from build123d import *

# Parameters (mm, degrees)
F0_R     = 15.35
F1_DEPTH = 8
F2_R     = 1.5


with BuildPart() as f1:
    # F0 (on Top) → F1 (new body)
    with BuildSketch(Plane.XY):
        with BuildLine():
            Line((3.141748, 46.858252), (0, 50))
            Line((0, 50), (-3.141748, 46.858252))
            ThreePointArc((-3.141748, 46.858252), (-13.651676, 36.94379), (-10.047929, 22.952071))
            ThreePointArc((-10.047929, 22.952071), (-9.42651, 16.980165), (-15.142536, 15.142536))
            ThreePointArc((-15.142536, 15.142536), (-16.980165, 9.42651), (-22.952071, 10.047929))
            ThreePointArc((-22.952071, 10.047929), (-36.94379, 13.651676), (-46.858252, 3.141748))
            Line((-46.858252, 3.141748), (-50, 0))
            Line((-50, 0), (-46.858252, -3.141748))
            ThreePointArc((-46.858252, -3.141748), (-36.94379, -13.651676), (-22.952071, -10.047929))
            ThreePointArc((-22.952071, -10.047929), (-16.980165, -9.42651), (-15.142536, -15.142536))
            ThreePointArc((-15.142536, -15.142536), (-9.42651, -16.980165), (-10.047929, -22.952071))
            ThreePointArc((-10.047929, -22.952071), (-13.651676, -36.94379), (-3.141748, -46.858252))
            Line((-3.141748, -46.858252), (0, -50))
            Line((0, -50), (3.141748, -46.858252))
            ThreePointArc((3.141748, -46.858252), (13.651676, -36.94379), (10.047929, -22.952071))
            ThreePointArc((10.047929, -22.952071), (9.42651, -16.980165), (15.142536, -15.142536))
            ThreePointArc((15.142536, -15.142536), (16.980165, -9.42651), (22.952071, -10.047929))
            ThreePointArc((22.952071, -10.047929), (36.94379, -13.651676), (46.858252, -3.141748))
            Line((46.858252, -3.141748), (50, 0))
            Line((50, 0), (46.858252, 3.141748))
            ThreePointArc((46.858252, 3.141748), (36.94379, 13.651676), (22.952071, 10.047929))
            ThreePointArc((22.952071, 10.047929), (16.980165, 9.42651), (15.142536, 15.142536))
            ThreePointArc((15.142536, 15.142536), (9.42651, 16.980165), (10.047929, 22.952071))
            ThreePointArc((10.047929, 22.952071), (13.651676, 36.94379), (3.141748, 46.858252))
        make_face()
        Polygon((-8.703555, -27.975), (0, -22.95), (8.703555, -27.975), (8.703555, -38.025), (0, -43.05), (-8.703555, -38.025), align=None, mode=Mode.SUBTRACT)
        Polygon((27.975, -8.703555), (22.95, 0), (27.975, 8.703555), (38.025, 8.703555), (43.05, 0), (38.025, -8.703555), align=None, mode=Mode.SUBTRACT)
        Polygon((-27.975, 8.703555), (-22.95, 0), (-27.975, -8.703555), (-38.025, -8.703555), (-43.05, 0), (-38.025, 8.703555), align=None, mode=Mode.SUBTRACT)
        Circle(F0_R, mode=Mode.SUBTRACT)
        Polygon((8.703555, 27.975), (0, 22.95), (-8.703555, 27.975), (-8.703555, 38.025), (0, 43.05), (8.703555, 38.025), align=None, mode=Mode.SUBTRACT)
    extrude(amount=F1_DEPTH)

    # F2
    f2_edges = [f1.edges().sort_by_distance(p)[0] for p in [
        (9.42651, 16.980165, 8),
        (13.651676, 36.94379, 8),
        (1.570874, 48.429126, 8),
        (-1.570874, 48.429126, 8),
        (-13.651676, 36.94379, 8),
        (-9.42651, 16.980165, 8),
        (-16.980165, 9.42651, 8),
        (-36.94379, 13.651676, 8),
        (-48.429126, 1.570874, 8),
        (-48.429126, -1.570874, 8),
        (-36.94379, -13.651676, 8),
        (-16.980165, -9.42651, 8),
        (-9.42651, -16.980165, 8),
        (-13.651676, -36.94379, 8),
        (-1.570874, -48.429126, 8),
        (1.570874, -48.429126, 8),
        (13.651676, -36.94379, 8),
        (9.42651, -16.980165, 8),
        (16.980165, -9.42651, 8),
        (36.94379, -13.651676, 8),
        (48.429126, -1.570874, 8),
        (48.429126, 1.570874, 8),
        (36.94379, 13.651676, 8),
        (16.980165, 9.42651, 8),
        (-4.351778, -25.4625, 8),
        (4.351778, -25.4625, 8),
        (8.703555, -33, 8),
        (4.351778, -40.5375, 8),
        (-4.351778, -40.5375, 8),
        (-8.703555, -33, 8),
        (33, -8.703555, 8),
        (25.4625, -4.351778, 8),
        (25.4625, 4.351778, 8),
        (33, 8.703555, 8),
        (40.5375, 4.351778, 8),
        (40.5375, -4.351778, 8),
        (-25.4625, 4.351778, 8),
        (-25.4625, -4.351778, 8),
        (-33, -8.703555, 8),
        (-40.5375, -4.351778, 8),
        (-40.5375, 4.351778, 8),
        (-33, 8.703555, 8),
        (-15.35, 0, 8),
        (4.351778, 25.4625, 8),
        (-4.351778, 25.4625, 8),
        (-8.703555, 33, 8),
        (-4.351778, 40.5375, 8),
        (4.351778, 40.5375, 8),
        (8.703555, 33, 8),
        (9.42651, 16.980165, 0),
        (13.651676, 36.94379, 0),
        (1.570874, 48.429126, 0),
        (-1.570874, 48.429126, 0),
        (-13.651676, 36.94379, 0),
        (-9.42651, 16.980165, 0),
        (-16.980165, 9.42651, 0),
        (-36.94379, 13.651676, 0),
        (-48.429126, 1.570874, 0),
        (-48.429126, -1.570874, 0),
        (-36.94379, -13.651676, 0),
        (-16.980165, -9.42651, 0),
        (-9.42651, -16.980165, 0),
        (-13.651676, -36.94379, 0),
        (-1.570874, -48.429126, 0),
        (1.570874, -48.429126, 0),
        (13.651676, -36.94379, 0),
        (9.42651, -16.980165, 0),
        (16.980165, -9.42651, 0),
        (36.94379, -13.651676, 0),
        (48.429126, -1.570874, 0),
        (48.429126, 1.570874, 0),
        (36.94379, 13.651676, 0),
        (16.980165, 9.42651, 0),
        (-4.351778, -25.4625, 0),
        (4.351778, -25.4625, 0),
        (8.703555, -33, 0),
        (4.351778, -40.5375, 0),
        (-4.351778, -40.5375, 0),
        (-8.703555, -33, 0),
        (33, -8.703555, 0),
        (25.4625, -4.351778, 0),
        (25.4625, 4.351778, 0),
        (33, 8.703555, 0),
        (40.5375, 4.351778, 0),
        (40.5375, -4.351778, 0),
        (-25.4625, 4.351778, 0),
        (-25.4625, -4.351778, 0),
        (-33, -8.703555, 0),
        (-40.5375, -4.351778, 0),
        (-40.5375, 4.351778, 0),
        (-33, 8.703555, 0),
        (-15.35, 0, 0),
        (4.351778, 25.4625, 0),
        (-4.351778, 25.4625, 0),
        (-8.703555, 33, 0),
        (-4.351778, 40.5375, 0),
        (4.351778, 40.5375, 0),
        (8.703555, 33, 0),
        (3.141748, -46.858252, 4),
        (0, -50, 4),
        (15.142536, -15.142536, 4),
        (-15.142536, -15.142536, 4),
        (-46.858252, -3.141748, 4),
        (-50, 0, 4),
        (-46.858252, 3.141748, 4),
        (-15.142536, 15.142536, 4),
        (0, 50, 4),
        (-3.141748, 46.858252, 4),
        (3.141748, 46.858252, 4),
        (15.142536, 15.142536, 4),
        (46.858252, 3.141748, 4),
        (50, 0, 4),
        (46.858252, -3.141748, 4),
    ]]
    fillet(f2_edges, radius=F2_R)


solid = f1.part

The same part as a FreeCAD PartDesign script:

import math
import FreeCAD as App
import Part
import Sketcher
Q = App.Units.Quantity


def edges_at(feature, points):
    """Names of the edges that pass closest to the given points."""
    edges = feature.Shape.Edges
    near = lambda p: min(range(len(edges)), key=lambda i: edges[i].distToShape(Part.Vertex(*p))[0])
    return sorted({f"Edge{near(p) + 1}" for p in points})

doc = App.newDocument("Part")
body = doc.addObject("PartDesign::Body", "Body")

# Sketch on XY plane
sketch1 = body.newObject("Sketcher::SketchObject", "Sketch")
sketch1.AttachmentSupport = (doc.getObject("XY_Plane"), [""])
sketch1.MapMode = "FlatFace"
sketch1.addGeometry(Part.LineSegment(App.Vector(3.1, 46.9, 0), App.Vector(0, 50, 0)), False)
sketch1.addGeometry(Part.LineSegment(App.Vector(0, 50, 0), App.Vector(-3.1, 46.9, 0)), False)
sketch1.addGeometry(Part.ArcOfCircle(Part.Circle(App.Vector(0, 33, 0), App.Vector(0, 0, 1), 14.2), math.radians(103), math.radians(225)), False)
sketch1.addGeometry(Part.ArcOfCircle(Part.Circle(App.Vector(-13.4, 19.6, 0), App.Vector(0, 0, 1), 4.8), math.radians(-111), math.radians(45)), False)
sketch1.addGeometry(Part.ArcOfCircle(Part.Circle(App.Vector(-19.6, 13.4, 0), App.Vector(0, 0, 1), 4.8), math.radians(-135), math.radians(21)), False)
sketch1.addGeometry(Part.ArcOfCircle(Part.Circle(App.Vector(-33, 0, 0), App.Vector(0, 0, 1), 14.2), math.radians(45), math.radians(167)), False)
sketch1.addGeometry(Part.LineSegment(App.Vector(-46.9, 3.1, 0), App.Vector(-50, 0, 0)), False)
sketch1.addGeometry(Part.LineSegment(App.Vector(-50, 0, 0), App.Vector(-46.9, -3.1, 0)), False)
sketch1.addGeometry(Part.ArcOfCircle(Part.Circle(App.Vector(-33, 0, 0), App.Vector(0, 0, 1), 14.2), math.radians(-167), math.radians(-45)), False)
sketch1.addGeometry(Part.ArcOfCircle(Part.Circle(App.Vector(-19.6, -13.4, 0), App.Vector(0, 0, 1), 4.8), math.radians(-21), math.radians(135)), False)
sketch1.addGeometry(Part.ArcOfCircle(Part.Circle(App.Vector(-13.4, -19.6, 0), App.Vector(0, 0, 1), 4.8), math.radians(-45), math.radians(111)), False)
sketch1.addGeometry(Part.ArcOfCircle(Part.Circle(App.Vector(0, -33, 0), App.Vector(0, 0, 1), 14.2), math.radians(135), math.radians(257)), False)
sketch1.addGeometry(Part.LineSegment(App.Vector(-3.1, -46.9, 0), App.Vector(0, -50, 0)), False)
sketch1.addGeometry(Part.LineSegment(App.Vector(0, -50, 0), App.Vector(3.1, -46.9, 0)), False)
sketch1.addGeometry(Part.ArcOfCircle(Part.Circle(App.Vector(0, -33, 0), App.Vector(0, 0, 1), 14.2), math.radians(-77), math.radians(45)), False)
sketch1.addGeometry(Part.ArcOfCircle(Part.Circle(App.Vector(13.4, -19.6, 0), App.Vector(0, 0, 1), 4.8), math.radians(69), math.radians(225)), False)
sketch1.addGeometry(Part.ArcOfCircle(Part.Circle(App.Vector(19.6, -13.4, 0), App.Vector(0, 0, 1), 4.8), math.radians(45), math.radians(201)), False)
sketch1.addGeometry(Part.ArcOfCircle(Part.Circle(App.Vector(33, 0, 0), App.Vector(0, 0, 1), 14.2), math.radians(-135), math.radians(-13)), False)
sketch1.addGeometry(Part.LineSegment(App.Vector(46.9, -3.1, 0), App.Vector(50, 0, 0)), False)
sketch1.addGeometry(Part.LineSegment(App.Vector(50, 0, 0), App.Vector(46.9, 3.1, 0)), False)
sketch1.addGeometry(Part.ArcOfCircle(Part.Circle(App.Vector(33, 0, 0), App.Vector(0, 0, 1), 14.2), math.radians(13), math.radians(135)), False)
sketch1.addGeometry(Part.ArcOfCircle(Part.Circle(App.Vector(19.6, 13.4, 0), App.Vector(0, 0, 1), 4.8), math.radians(159), math.radians(315)), False)
sketch1.addGeometry(Part.ArcOfCircle(Part.Circle(App.Vector(13.4, 19.6, 0), App.Vector(0, 0, 1), 4.8), math.radians(135), math.radians(291)), False)
sketch1.addGeometry(Part.ArcOfCircle(Part.Circle(App.Vector(0, 33, 0), App.Vector(0, 0, 1), 14.2), math.radians(-45), math.radians(77)), False)
sketch1.addGeometry(Part.LineSegment(App.Vector(-8.7, -38, 0), App.Vector(-8.7, -28, 0)), False)
sketch1.addGeometry(Part.LineSegment(App.Vector(-8.7, -28, 0), App.Vector(0, -22.9, 0)), False)
sketch1.addGeometry(Part.LineSegment(App.Vector(0, -22.9, 0), App.Vector(8.7, -28, 0)), False)
sketch1.addGeometry(Part.LineSegment(App.Vector(8.7, -28, 0), App.Vector(8.7, -38, 0)), False)
sketch1.addGeometry(Part.LineSegment(App.Vector(8.7, -38, 0), App.Vector(0, -43, 0)), False)
sketch1.addGeometry(Part.LineSegment(App.Vector(0, -43, 0), App.Vector(-8.7, -38, 0)), False)
sketch1.addGeometry(Part.LineSegment(App.Vector(-38, 8.7, 0), App.Vector(-28, 8.7, 0)), False)
sketch1.addGeometry(Part.LineSegment(App.Vector(-28, 8.7, 0), App.Vector(-22.9, 0, 0)), False)
sketch1.addGeometry(Part.LineSegment(App.Vector(-22.9, 0, 0), App.Vector(-28, -8.7, 0)), False)
sketch1.addGeometry(Part.LineSegment(App.Vector(-28, -8.7, 0), App.Vector(-38, -8.7, 0)), False)
sketch1.addGeometry(Part.LineSegment(App.Vector(-38, -8.7, 0), App.Vector(-43, 0, 0)), False)
sketch1.addGeometry(Part.LineSegment(App.Vector(-43, 0, 0), App.Vector(-38, 8.7, 0)), False)
sketch1.addGeometry(Part.Circle(App.Vector(0, 0, 0), App.Vector(0, 0, 1), 15.3), False)
sketch1.addGeometry(Part.LineSegment(App.Vector(38, -8.7, 0), App.Vector(28, -8.7, 0)), False)
sketch1.addGeometry(Part.LineSegment(App.Vector(28, -8.7, 0), App.Vector(22.9, 0, 0)), False)
sketch1.addGeometry(Part.LineSegment(App.Vector(22.9, 0, 0), App.Vector(28, 8.7, 0)), False)
sketch1.addGeometry(Part.LineSegment(App.Vector(28, 8.7, 0), App.Vector(38, 8.7, 0)), False)
sketch1.addGeometry(Part.LineSegment(App.Vector(38, 8.7, 0), App.Vector(43, 0, 0)), False)
sketch1.addGeometry(Part.LineSegment(App.Vector(43, 0, 0), App.Vector(38, -8.7, 0)), False)
sketch1.addGeometry(Part.LineSegment(App.Vector(8.7, 38, 0), App.Vector(8.7, 28, 0)), False)
sketch1.addGeometry(Part.LineSegment(App.Vector(8.7, 28, 0), App.Vector(0, 22.9, 0)), False)
sketch1.addGeometry(Part.LineSegment(App.Vector(0, 22.9, 0), App.Vector(-8.7, 28, 0)), False)
sketch1.addGeometry(Part.LineSegment(App.Vector(-8.7, 28, 0), App.Vector(-8.7, 38, 0)), False)
sketch1.addGeometry(Part.LineSegment(App.Vector(-8.7, 38, 0), App.Vector(0, 43, 0)), False)
sketch1.addGeometry(Part.LineSegment(App.Vector(0, 43, 0), App.Vector(8.7, 38, 0)), False)
sketch1.addConstraint(Sketcher.Constraint("Coincident", 0, 2, 1, 1))
sketch1.addConstraint(Sketcher.Constraint("Coincident", 1, 2, 2, 1))
sketch1.addConstraint(Sketcher.Constraint("Tangent", 2, 2, 3, 2))
sketch1.addConstraint(Sketcher.Constraint("Coincident", 3, 1, 4, 2))
sketch1.addConstraint(Sketcher.Constraint("Tangent", 4, 1, 5, 1))
sketch1.addConstraint(Sketcher.Constraint("Coincident", 5, 2, 6, 1))
sketch1.addConstraint(Sketcher.Constraint("Coincident", 6, 2, 7, 1))
sketch1.addConstraint(Sketcher.Constraint("Coincident", 7, 2, 8, 1))
sketch1.addConstraint(Sketcher.Constraint("Tangent", 8, 2, 9, 2))
sketch1.addConstraint(Sketcher.Constraint("Coincident", 9, 1, 10, 2))
sketch1.addConstraint(Sketcher.Constraint("Tangent", 10, 1, 11, 1))
sketch1.addConstraint(Sketcher.Constraint("Coincident", 11, 2, 12, 1))
sketch1.addConstraint(Sketcher.Constraint("Coincident", 12, 2, 13, 1))
sketch1.addConstraint(Sketcher.Constraint("Coincident", 13, 2, 14, 1))
sketch1.addConstraint(Sketcher.Constraint("Tangent", 14, 2, 15, 2))
sketch1.addConstraint(Sketcher.Constraint("Coincident", 15, 1, 16, 2))
sketch1.addConstraint(Sketcher.Constraint("Tangent", 16, 1, 17, 1))
sketch1.addConstraint(Sketcher.Constraint("Coincident", 17, 2, 18, 1))
sketch1.addConstraint(Sketcher.Constraint("Coincident", 18, 2, 19, 1))
sketch1.addConstraint(Sketcher.Constraint("Coincident", 19, 2, 20, 1))
sketch1.addConstraint(Sketcher.Constraint("Tangent", 20, 2, 21, 2))
sketch1.addConstraint(Sketcher.Constraint("Coincident", 21, 1, 22, 2))
sketch1.addConstraint(Sketcher.Constraint("Tangent", 22, 1, 23, 1))
sketch1.addConstraint(Sketcher.Constraint("Coincident", 23, 2, 0, 1))
sketch1.addConstraint(Sketcher.Constraint("Coincident", 24, 2, 25, 1))
sketch1.addConstraint(Sketcher.Constraint("Coincident", 25, 2, 26, 1))
sketch1.addConstraint(Sketcher.Constraint("Coincident", 26, 2, 27, 1))
sketch1.addConstraint(Sketcher.Constraint("Coincident", 27, 2, 28, 1))
sketch1.addConstraint(Sketcher.Constraint("Coincident", 28, 2, 29, 1))
sketch1.addConstraint(Sketcher.Constraint("Coincident", 29, 2, 24, 1))
sketch1.addConstraint(Sketcher.Constraint("Coincident", 30, 2, 31, 1))
sketch1.addConstraint(Sketcher.Constraint("Coincident", 31, 2, 32, 1))
sketch1.addConstraint(Sketcher.Constraint("Coincident", 32, 2, 33, 1))
sketch1.addConstraint(Sketcher.Constraint("Coincident", 33, 2, 34, 1))
sketch1.addConstraint(Sketcher.Constraint("Coincident", 34, 2, 35, 1))
sketch1.addConstraint(Sketcher.Constraint("Coincident", 35, 2, 30, 1))
sketch1.addConstraint(Sketcher.Constraint("Coincident", 37, 2, 38, 1))
sketch1.addConstraint(Sketcher.Constraint("Coincident", 38, 2, 39, 1))
sketch1.addConstraint(Sketcher.Constraint("Coincident", 39, 2, 40, 1))
sketch1.addConstraint(Sketcher.Constraint("Coincident", 40, 2, 41, 1))
sketch1.addConstraint(Sketcher.Constraint("Coincident", 41, 2, 42, 1))
sketch1.addConstraint(Sketcher.Constraint("Coincident", 42, 2, 37, 1))
sketch1.addConstraint(Sketcher.Constraint("Coincident", 43, 2, 44, 1))
sketch1.addConstraint(Sketcher.Constraint("Coincident", 44, 2, 45, 1))
sketch1.addConstraint(Sketcher.Constraint("Coincident", 45, 2, 46, 1))
sketch1.addConstraint(Sketcher.Constraint("Coincident", 46, 2, 47, 1))
sketch1.addConstraint(Sketcher.Constraint("Coincident", 47, 2, 48, 1))
sketch1.addConstraint(Sketcher.Constraint("Coincident", 48, 2, 43, 1))
sketch1.addConstraint(Sketcher.Constraint("Vertical", 24))
sketch1.addConstraint(Sketcher.Constraint("Vertical", 27))
sketch1.addConstraint(Sketcher.Constraint("Horizontal", 30))
sketch1.addConstraint(Sketcher.Constraint("Horizontal", 33))
sketch1.addConstraint(Sketcher.Constraint("Horizontal", 37))
sketch1.addConstraint(Sketcher.Constraint("Horizontal", 40))
sketch1.addConstraint(Sketcher.Constraint("Vertical", 43))
sketch1.addConstraint(Sketcher.Constraint("Vertical", 46))
sketch1.addConstraint(Sketcher.Constraint("Coincident", 36, 3, -1, 1))
sketch1.addConstraint(Sketcher.Constraint("Coincident", 8, 3, 5, 3))
sketch1.addConstraint(Sketcher.Constraint("Coincident", 14, 3, 11, 3))
sketch1.addConstraint(Sketcher.Constraint("Coincident", 20, 3, 17, 3))
sketch1.addConstraint(Sketcher.Constraint("Coincident", 23, 3, 2, 3))
sketch1.addConstraint(Sketcher.Constraint("Equal", 3, 4))
sketch1.addConstraint(Sketcher.Constraint("Equal", 2, 5))
sketch1.addConstraint(Sketcher.Constraint("Equal", 5, 8))
sketch1.addConstraint(Sketcher.Constraint("Equal", 4, 9))
sketch1.addConstraint(Sketcher.Constraint("Equal", 9, 10))
sketch1.addConstraint(Sketcher.Constraint("Equal", 8, 11))
sketch1.addConstraint(Sketcher.Constraint("Equal", 11, 14))
sketch1.addConstraint(Sketcher.Constraint("Equal", 10, 15))
sketch1.addConstraint(Sketcher.Constraint("Equal", 15, 16))
sketch1.addConstraint(Sketcher.Constraint("Equal", 14, 17))
sketch1.addConstraint(Sketcher.Constraint("Equal", 17, 20))
sketch1.addConstraint(Sketcher.Constraint("Equal", 16, 21))
sketch1.addConstraint(Sketcher.Constraint("Equal", 21, 22))
sketch1.addConstraint(Sketcher.Constraint("Equal", 20, 23))
sketch1.addConstraint(Sketcher.Constraint("Symmetric", 2, 3, 11, 3, -1, 1))
sketch1.addConstraint(Sketcher.Constraint("Symmetric", 4, 3, 16, 3, -1, 1))
sketch1.addConstraint(Sketcher.Constraint("Symmetric", 9, 3, 21, 3, -1, 1))
sketch1.addConstraint(Sketcher.Constraint("Symmetric", 0, 2, 12, 2, -1, 1))
sketch1.addConstraint(Sketcher.Constraint("Symmetric", 6, 2, 18, 2, -1, 1))
sketch1.addConstraint(Sketcher.Constraint("Symmetric", 30, 2, 37, 2, -1, 1))
sketch1.addConstraint(Sketcher.Constraint("Symmetric", 31, 2, 38, 2, -1, 1))
sketch1.addConstraint(Sketcher.Constraint("Symmetric", 32, 2, 39, 2, -1, 1))
sketch1.addConstraint(Sketcher.Constraint("Symmetric", 34, 2, 41, 2, -1, 1))
sketch1.addConstraint(Sketcher.Constraint("Symmetric", 24, 2, 43, 2, -1, 1))
sketch1.addConstraint(Sketcher.Constraint("Symmetric", 25, 2, 44, 2, -1, 1))
sketch1.addConstraint(Sketcher.Constraint("Symmetric", 26, 2, 45, 2, -1, 1))
sketch1.addConstraint(Sketcher.Constraint("Symmetric", 28, 2, 47, 2, -1, 1))
sketch1.addConstraint(Sketcher.Constraint("Symmetric", 10, 3, 15, 3, -2))
sketch1.addConstraint(Sketcher.Constraint("Symmetric", 9, 3, 16, 3, -2))
sketch1.addConstraint(Sketcher.Constraint("Symmetric", 24, 2, 26, 2, -2))
sketch1.addConstraint(Sketcher.Constraint("Symmetric", 32, 2, 37, 2, -2))
sketch1.addConstraint(Sketcher.Constraint("PointOnObject", 0, 2, -2))
sketch1.addConstraint(Sketcher.Constraint("PointOnObject", 6, 2, -1))
sketch1.addConstraint(Sketcher.Constraint("PointOnObject", 25, 2, -2))
sketch1.addConstraint(Sketcher.Constraint("PointOnObject", 28, 2, -2))
sketch1.addConstraint(Sketcher.Constraint("PointOnObject", 31, 2, -1))
sketch1.addConstraint(Sketcher.Constraint("PointOnObject", 34, 2, -1))
sketch1.addConstraint(Sketcher.Constraint("Perpendicular", 0, 1))
sketch1.addConstraint(Sketcher.Constraint("Parallel", 1, 6))
sketch1.addConstraint(Sketcher.Constraint("Perpendicular", 6, 7))
sketch1.addConstraint(Sketcher.Constraint("Parallel", 7, 12))
sketch1.addConstraint(Sketcher.Constraint("Perpendicular", 12, 13))
sketch1.addConstraint(Sketcher.Constraint("Parallel", 13, 18))
sketch1.addConstraint(Sketcher.Constraint("Perpendicular", 18, 19))
sketch1.addConstraint(Sketcher.Constraint("Parallel", 25, 28))
sketch1.addConstraint(Sketcher.Constraint("Parallel", 26, 29))
sketch1.addConstraint(Sketcher.Constraint("Perpendicular", 28, 31))
sketch1.addConstraint(Sketcher.Constraint("Parallel", 31, 34))
sketch1.addConstraint(Sketcher.Constraint("Parallel", 32, 35))
sketch1.addConstraint(Sketcher.Constraint("Parallel", 38, 41))
sketch1.addConstraint(Sketcher.Constraint("Parallel", 39, 42))
sketch1.addConstraint(Sketcher.Constraint("Parallel", 44, 47))
sketch1.addConstraint(Sketcher.Constraint("Parallel", 45, 48))
sketch1.addConstraint(Sketcher.Constraint("Horizontal", 3, 3, 22, 3))
sketch1.addConstraint(Sketcher.Constraint("Horizontal", 11, 2, 13, 2))
sketch1.addConstraint(Sketcher.Constraint("Vertical", 3, 3, 10, 3))
sketch1.addConstraint(Sketcher.Constraint("Equal", 40, 24))
sketch1.addConstraint(Sketcher.Constraint("Equal", 1, 6))
sketch1.addConstraint(Sketcher.Constraint("Equal", 29, 31))
sketch1.addConstraint(Sketcher.Constraint("Diameter", 36, 30.7))
sketch1.addConstraint(Sketcher.Constraint("Angle", 25, Q("30.000001 deg")))
sketch1.addConstraint(Sketcher.Constraint("DistanceY", -1, 1, 2, 3, 32.999999))
sketch1.addConstraint(Sketcher.Constraint("DistanceX", 5, 3, -1, 1, 32.999999))
sketch1.addConstraint(Sketcher.Constraint("DistanceY", -1, 1, 0, 2, 50.0))
sketch1.addConstraint(Sketcher.Constraint("DistanceX", 30, 1, 30, 2, 10.05))
sketch1.addConstraint(Sketcher.Constraint("Distance", 25, 10.05))
sketch1.addConstraint(Sketcher.Constraint("DistanceY", 25, 2, -1, 1, 22.95))
sketch1.addConstraint(Sketcher.Constraint("DistanceX", 31, 2, -1, 1, 22.95))
sketch1.addConstraint(Sketcher.Constraint("Radius", 2, 14.209917))
sketch1.addConstraint(Sketcher.Constraint("Radius", 3, 4.764252))
sketch1.addConstraint(Sketcher.Constraint("DistanceX", 2, 2, -1, 1, 10.047929))
sketch1.addConstraint(Sketcher.Constraint("DistanceX", 4, 1, -1, 1, 22.952071))
pad1 = body.newObject("PartDesign::Pad", "Pad")
pad1.Profile = sketch1
pad1.Length = 8
doc.recompute()

fillet = body.newObject("PartDesign::Fillet", "Fillet")
fillet.Base = (pad1, edges_at(pad1, [
    (9.427, 16.98, 8),
    (13.652, 36.944, 8),
    (1.571, 48.429, 8),
    (-1.571, 48.429, 8),
    (-13.652, 36.944, 8),
    (-9.427, 16.98, 8),
    (-16.98, 9.427, 8),
    (-36.944, 13.652, 8),
    (-48.429, 1.571, 8),
    (-48.429, -1.571, 8),
    (-36.944, -13.652, 8),
    (-16.98, -9.427, 8),
    (-9.427, -16.98, 8),
    (-13.652, -36.944, 8),
    (-1.571, -48.429, 8),
    (1.571, -48.429, 8),
    (13.652, -36.944, 8),
    (9.427, -16.98, 8),
    (16.98, -9.427, 8),
    (36.944, -13.652, 8),
    (48.429, -1.571, 8),
    (48.429, 1.571, 8),
    (36.944, 13.652, 8),
    (16.98, 9.427, 8),
    (-4.352, -25.462, 8),
    (4.352, -25.462, 8),
    (8.704, -33, 8),
    (4.352, -40.538, 8),
    (-4.352, -40.538, 8),
    (-8.704, -33, 8),
    (33, -8.704, 8),
    (25.462, -4.352, 8),
    (25.462, 4.352, 8),
    (33, 8.704, 8),
    (40.538, 4.352, 8),
    (40.538, -4.352, 8),
    (-25.462, 4.352, 8),
    (-25.462, -4.352, 8),
    (-33, -8.704, 8),
    (-40.538, -4.352, 8),
    (-40.538, 4.352, 8),
    (-33, 8.704, 8),
    (-15.35, 0, 8),
    (4.352, 25.462, 8),
    (-4.352, 25.462, 8),
    (-8.704, 33, 8),
    (-4.352, 40.538, 8),
    (4.352, 40.538, 8),
    (8.704, 33, 8),
    (9.427, 16.98, 0),
    (13.652, 36.944, 0),
    (1.571, 48.429, 0),
    (-1.571, 48.429, 0),
    (-13.652, 36.944, 0),
    (-9.427, 16.98, 0),
    (-16.98, 9.427, 0),
    (-36.944, 13.652, 0),
    (-48.429, 1.571, 0),
    (-48.429, -1.571, 0),
    (-36.944, -13.652, 0),
    (-16.98, -9.427, 0),
    (-9.427, -16.98, 0),
    (-13.652, -36.944, 0),
    (-1.571, -48.429, 0),
    (1.571, -48.429, 0),
    (13.652, -36.944, 0),
    (9.427, -16.98, 0),
    (16.98, -9.427, 0),
    (36.944, -13.652, 0),
    (48.429, -1.571, 0),
    (48.429, 1.571, 0),
    (36.944, 13.652, 0),
    (16.98, 9.427, 0),
    (-4.352, -25.462, 0),
    (4.352, -25.462, 0),
    (8.704, -33, 0),
    (4.352, -40.538, 0),
    (-4.352, -40.538, 0),
    (-8.704, -33, 0),
    (33, -8.704, 0),
    (25.462, -4.352, 0),
    (25.462, 4.352, 0),
    (33, 8.704, 0),
    (40.538, 4.352, 0),
    (40.538, -4.352, 0),
    (-25.462, 4.352, 0),
    (-25.462, -4.352, 0),
    (-33, -8.704, 0),
    (-40.538, -4.352, 0),
    (-40.538, 4.352, 0),
    (-33, 8.704, 0),
    (-15.35, 0, 0),
    (4.352, 25.462, 0),
    (-4.352, 25.462, 0),
    (-8.704, 33, 0),
    (-4.352, 40.538, 0),
    (4.352, 40.538, 0),
    (8.704, 33, 0),
    (3.142, -46.858, 4),
    (0, -50, 4),
    (15.143, -15.143, 4),
    (-15.143, -15.143, 4),
    (-46.858, -3.142, 4),
    (-50, 0, 4),
    (-46.858, 3.142, 4),
    (-15.143, 15.143, 4),
    (0, 50, 4),
    (-3.142, 46.858, 4),
    (3.142, 46.858, 4),
    (15.143, 15.143, 4),
    (46.858, 3.142, 4),
    (50, 0, 4),
    (46.858, -3.142, 4),
]))
fillet.Radius = 1.5

doc.recompute()
